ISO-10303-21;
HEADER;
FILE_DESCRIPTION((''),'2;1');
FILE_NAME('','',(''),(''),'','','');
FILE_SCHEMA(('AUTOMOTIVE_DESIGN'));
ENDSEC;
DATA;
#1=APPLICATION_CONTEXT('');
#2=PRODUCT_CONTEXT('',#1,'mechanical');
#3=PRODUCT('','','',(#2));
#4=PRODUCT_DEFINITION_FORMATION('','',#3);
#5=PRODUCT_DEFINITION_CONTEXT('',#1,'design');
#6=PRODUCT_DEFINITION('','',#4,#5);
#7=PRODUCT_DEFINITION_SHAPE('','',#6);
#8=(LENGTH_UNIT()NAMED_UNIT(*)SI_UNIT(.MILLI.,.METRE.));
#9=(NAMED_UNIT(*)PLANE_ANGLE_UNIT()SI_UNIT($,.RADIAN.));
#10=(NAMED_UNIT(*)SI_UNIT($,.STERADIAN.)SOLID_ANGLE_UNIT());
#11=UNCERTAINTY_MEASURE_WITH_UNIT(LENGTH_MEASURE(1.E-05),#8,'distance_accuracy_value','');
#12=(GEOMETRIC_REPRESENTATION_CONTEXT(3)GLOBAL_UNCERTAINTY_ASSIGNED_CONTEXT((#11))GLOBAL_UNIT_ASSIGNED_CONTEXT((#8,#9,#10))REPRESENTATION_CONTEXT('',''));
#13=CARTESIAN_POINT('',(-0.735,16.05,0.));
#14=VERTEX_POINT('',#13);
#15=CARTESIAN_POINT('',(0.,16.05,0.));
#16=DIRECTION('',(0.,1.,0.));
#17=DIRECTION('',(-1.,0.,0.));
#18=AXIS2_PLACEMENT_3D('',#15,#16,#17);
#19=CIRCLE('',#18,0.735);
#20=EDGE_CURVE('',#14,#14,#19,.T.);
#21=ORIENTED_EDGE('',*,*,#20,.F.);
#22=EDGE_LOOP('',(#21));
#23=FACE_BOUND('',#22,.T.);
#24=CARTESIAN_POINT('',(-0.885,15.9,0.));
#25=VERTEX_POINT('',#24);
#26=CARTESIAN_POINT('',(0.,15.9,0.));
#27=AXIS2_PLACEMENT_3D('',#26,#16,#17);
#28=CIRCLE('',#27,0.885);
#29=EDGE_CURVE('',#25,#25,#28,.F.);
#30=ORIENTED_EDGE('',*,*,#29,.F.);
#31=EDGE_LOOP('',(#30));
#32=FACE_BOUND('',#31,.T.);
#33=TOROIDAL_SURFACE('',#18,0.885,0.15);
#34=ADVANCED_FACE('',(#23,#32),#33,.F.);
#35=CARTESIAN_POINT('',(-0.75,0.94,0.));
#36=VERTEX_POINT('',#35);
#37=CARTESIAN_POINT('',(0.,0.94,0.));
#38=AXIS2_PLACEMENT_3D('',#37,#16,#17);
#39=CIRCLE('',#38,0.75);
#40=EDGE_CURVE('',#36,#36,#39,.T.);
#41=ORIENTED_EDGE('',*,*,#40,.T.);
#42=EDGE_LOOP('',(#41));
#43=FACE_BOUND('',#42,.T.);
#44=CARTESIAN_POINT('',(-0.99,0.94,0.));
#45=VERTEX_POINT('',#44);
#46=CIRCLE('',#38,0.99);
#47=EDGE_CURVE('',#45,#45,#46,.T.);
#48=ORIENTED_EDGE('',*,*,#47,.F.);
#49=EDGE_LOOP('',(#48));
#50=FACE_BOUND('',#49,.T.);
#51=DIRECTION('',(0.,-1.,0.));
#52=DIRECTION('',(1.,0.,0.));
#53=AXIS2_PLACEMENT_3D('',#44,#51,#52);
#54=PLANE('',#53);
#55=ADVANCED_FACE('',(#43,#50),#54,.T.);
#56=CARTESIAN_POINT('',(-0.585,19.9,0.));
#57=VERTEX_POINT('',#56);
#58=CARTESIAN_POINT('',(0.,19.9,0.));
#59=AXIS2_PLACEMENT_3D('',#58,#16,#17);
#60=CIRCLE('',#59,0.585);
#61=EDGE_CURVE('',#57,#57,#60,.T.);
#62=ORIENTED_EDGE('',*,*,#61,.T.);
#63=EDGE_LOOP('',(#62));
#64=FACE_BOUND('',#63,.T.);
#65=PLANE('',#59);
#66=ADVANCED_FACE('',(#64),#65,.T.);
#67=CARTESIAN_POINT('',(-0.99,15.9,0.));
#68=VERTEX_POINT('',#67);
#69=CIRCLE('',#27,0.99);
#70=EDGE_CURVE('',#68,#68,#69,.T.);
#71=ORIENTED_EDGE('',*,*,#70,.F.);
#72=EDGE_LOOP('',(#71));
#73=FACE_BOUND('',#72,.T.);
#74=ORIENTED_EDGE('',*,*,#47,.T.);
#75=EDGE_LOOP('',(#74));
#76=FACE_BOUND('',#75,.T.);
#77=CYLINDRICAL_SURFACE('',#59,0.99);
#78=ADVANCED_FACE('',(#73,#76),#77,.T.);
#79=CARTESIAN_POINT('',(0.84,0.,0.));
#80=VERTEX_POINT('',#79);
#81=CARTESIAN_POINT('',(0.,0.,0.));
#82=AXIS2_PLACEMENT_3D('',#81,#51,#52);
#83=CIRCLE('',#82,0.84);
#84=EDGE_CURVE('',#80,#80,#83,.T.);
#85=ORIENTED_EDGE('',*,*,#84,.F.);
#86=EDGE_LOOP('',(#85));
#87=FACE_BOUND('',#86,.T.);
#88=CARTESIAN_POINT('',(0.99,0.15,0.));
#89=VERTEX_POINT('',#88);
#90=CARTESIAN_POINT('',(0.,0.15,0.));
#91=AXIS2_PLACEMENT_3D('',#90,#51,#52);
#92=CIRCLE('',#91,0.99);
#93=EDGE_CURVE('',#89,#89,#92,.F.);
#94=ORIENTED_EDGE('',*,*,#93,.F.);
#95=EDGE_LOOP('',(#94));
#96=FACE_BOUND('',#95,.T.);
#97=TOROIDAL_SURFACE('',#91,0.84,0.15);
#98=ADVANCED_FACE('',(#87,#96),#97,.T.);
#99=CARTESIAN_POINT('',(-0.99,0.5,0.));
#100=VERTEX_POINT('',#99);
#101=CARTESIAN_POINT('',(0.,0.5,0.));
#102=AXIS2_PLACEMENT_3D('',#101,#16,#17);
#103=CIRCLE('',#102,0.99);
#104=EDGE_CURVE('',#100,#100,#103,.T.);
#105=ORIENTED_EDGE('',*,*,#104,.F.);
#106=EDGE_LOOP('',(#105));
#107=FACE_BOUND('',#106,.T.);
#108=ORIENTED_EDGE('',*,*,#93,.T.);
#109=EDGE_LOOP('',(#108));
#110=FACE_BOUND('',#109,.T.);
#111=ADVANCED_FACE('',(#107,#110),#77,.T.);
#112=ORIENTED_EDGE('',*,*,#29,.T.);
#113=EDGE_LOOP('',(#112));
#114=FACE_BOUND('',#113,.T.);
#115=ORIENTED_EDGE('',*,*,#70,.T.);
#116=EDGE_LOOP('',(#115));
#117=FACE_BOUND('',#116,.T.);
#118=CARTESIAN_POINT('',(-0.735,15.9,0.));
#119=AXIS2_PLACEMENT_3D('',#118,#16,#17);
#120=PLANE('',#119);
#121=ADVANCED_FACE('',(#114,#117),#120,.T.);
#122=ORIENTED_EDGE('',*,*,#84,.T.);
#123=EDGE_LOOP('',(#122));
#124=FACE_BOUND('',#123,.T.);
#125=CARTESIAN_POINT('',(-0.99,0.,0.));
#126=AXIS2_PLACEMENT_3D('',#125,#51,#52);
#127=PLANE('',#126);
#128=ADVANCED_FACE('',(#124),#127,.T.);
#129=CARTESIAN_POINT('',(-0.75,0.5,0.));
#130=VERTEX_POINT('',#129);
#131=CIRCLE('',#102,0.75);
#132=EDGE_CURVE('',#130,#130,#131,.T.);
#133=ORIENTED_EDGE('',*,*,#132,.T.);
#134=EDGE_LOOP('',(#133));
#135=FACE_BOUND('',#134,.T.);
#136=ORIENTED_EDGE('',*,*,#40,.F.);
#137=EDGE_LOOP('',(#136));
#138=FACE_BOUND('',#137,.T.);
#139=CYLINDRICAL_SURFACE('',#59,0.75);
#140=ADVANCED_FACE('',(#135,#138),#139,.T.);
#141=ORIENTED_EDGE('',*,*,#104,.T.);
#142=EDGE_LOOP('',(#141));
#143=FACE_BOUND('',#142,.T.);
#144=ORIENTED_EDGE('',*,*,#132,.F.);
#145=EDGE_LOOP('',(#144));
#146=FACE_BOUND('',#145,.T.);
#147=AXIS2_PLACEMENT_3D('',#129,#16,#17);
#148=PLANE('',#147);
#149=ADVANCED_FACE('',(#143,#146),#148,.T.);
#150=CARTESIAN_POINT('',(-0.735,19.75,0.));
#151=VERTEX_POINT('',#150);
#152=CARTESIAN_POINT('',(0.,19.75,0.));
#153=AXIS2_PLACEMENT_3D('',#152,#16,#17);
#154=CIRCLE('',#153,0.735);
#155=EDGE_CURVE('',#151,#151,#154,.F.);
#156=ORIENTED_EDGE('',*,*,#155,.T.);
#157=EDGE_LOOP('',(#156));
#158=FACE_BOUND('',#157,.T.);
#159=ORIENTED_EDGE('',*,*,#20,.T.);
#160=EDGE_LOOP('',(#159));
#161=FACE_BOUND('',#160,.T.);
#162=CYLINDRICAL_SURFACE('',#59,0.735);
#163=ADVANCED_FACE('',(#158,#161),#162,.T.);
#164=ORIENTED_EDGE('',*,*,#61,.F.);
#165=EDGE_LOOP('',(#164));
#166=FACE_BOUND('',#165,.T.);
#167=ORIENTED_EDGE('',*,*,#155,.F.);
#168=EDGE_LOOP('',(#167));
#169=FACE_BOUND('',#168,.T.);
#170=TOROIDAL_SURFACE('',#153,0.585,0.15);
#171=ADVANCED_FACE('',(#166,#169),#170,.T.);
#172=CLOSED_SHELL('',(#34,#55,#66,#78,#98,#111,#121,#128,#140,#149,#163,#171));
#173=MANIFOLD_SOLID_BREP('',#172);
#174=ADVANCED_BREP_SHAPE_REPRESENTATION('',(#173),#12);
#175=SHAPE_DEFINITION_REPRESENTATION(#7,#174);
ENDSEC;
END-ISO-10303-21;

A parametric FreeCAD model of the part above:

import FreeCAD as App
import Part
import Sketcher

V = App.Vector
Q = App.Units.Quantity


def edges_at(feature, points):
    """Names of the edges that pass closest to the given points."""
    edges = feature.Shape.Edges
    near = lambda p: min(range(len(edges)), key=lambda i: edges[i].distToShape(Part.Vertex(*p))[0])
    return sorted({f"Edge{near(p) + 1}" for p in points})

doc = App.newDocument("Part")
params = doc.addObject("Spreadsheet::Sheet", "Params")
for row, (alias, value) in enumerate([
    ("sketch1_height", "4 mm"),
    ("sketch1_height2", "0.5 mm"),
    ("sketch1_height3", "19.9 mm"),
    ("sketch1_width", "0.24 mm"),
    ("sketch1_width2", "0.99 mm"),
    ("revolution_angle", "360 deg"),
    ("fillet_radius", "0.15 mm"),
], start=1):
    params.set(f"A{row}", alias)
    params.set(f"B{row}", "=" + value)
    params.setAlias(f"B{row}", alias)

body = doc.addObject("PartDesign::Body", "Body")

sketch1 = doc.addObject("Sketcher::SketchObject", "Sketch")
body.addObject(sketch1)
sketch1.AttachmentSupport = (doc.XY_Plane, [""])
sketch1.MapMode = "FlatFace"
sketch1.addGeometry([
    Part.LineSegment(V(0, 19.9, 0), V(-0.73, 19.9, 0)),
    Part.LineSegment(V(-0.73, 19.9, 0), V(-0.73, 15.9, 0)),
    Part.LineSegment(V(-0.73, 15.9, 0), V(-0.99, 15.9, 0)),
    Part.LineSegment(V(-0.99, 15.9, 0), V(-0.99, 0.94, 0)),
    Part.LineSegment(V(-0.99, 0.94, 0), V(-0.75, 0.94, 0)),
    Part.LineSegment(V(-0.75, 0.94, 0), V(-0.75, 0.5, 0)),
    Part.LineSegment(V(-0.75, 0.5, 0), V(-0.99, 0.5, 0)),
    Part.LineSegment(V(-0.99, 0.5, 0), V(-0.99, 0, 0)),
    Part.LineSegment(V(-0.99, 0, 0), V(0, 0, 0)),
    Part.LineSegment(V(0, 0, 0), V(0, 19.9, 0)),
], False)
sketch1.addConstraint([
    Sketcher.Constraint("Coincident", 0, 2, 1, 1),
    Sketcher.Constraint("Coincident", 1, 2, 2, 1),
    Sketcher.Constraint("Coincident", 2, 2, 3, 1),
    Sketcher.Constraint("Coincident", 3, 2, 4, 1),
    Sketcher.Constraint("Coincident", 4, 2, 5, 1),
    Sketcher.Constraint("Coincident", 5, 2, 6, 1),
    Sketcher.Constraint("Coincident", 6, 2, 7, 1),
    Sketcher.Constraint("Coincident", 7, 2, 8, 1),
    Sketcher.Constraint("Coincident", 8, 2, 9, 1),
    Sketcher.Constraint("Coincident", 9, 2, 0, 1),
    Sketcher.Constraint("Horizontal", 0),
    Sketcher.Constraint("Vertical", 1),
    Sketcher.Constraint("Horizontal", 2),
    Sketcher.Constraint("Vertical", 3),
    Sketcher.Constraint("Horizontal", 4),
    Sketcher.Constraint("Vertical", 5),
    Sketcher.Constraint("Horizontal", 6),
    Sketcher.Constraint("Vertical", 7),
    Sketcher.Constraint("Horizontal", 8),
    Sketcher.Constraint("Vertical", 9),
    Sketcher.Constraint("Coincident", 8, 2, -1, 1),
    Sketcher.Constraint("Vertical", 3, 2, 6, 2),
    Sketcher.Constraint("DistanceY", 1, 2, 1, 1, Q("4 mm")),
    Sketcher.Constraint("DistanceY", 7, 2, 7, 1, Q("0.5 mm")),
    Sketcher.Constraint("DistanceY", 9, 1, 9, 2, Q("19.9 mm")),
    Sketcher.Constraint("DistanceX", 4, 1, 4, 2, Q("0.24 mm")),
    Sketcher.Constraint("DistanceX", 8, 1, 8, 2, Q("0.99 mm")),
    Sketcher.Constraint("DistanceY", 3, 2, 3, 1, Q("14.96 mm")),
    Sketcher.Constraint("DistanceX", 0, 2, 0, 1, Q("0.735 mm")),
])
sketch1.setExpression("Constraints[22]", "Params.sketch1_height")
sketch1.setExpression("Constraints[23]", "Params.sketch1_height2")
sketch1.setExpression("Constraints[24]", "Params.sketch1_height3")
sketch1.setExpression("Constraints[25]", "Params.sketch1_width")
sketch1.setExpression("Constraints[26]", "Params.sketch1_width2")
revolution = doc.addObject("PartDesign::Revolution", "Revolution")
body.addObject(revolution)
revolution.Profile = sketch1
revolution.ReferenceAxis = (sketch1, ["V_Axis"])
revolution.setExpression("Angle", "Params.revolution_angle")
doc.recompute()

fillet = doc.addObject("PartDesign::Fillet", "Fillet")
body.addObject(fillet)
fillet.Base = (revolution, edges_at(revolution, [(0.735, 15.9, 0), (0.735, 19.9, 0), (0.99, 0, 0)]))
fillet.setExpression("Radius", "Params.fillet_radius")

doc.recompute()
